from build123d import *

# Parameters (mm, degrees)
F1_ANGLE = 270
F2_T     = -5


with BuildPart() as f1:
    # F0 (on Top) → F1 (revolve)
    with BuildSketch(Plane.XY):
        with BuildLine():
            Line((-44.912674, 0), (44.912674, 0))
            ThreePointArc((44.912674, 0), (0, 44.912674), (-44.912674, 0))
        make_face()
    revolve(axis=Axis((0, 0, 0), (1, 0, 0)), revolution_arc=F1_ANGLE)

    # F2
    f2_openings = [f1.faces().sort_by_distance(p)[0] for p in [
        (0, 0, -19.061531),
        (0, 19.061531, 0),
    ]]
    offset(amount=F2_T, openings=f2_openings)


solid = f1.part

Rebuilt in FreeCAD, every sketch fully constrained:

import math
import FreeCAD as App
import Part
import Sketcher
from FreeCAD import Vector


def faces_at(feature, points):
    """Names of the faces that lie closest to the given points."""
    faces = feature.Shape.Faces
    near = lambda p: min(range(len(faces)), key=lambda i: faces[i].distToShape(Part.Vertex(*p))[0])
    return sorted({f"Face{near(p) + 1}" for p in points})

doc = App.newDocument("Part")
body = doc.addObject("PartDesign::Body", "Body")

sketch1 = body.newObject("Sketcher::SketchObject", "Sketch")
sketch1.AttachmentSupport = (doc.getObject("XY_Plane"), [""])
sketch1.MapMode = "FlatFace"
sketch1.addGeometry([
    Part.LineSegment(Vector(-44.912674, 0, 0), Vector(44.912674, 0, 0)),
    Part.ArcOfCircle(Part.Circle(Vector(0, 0, 0), Vector(0, 0, 1), 44.912674), math.radians(0), math.radians(180)),
], False)
sketch1.addConstraint([
    Sketcher.Constraint("Coincident", 0, 1, 1, 2),
    Sketcher.Constraint("Coincident", 1, 1, 0, 2),
    Sketcher.Constraint("Horizontal", 0),
    Sketcher.Constraint("Coincident", 1, 3, -1, 1),
    Sketcher.Constraint("PointOnObject", 0, 1, -1),
    Sketcher.Constraint("Radius", 1, 44.912674),
])
revolution = body.newObject("PartDesign::Revolution", "Revolution")
revolution.Profile = sketch1
revolution.ReferenceAxis = (sketch1, ["H_Axis"])
revolution.Angle = 270
doc.recompute()

thickness = body.newObject("PartDesign::Thickness", "Thickness")
thickness.Base = (revolution, faces_at(revolution, [(0, 0, -22.456), (0, 22.456, 0)]))
thickness.Value = 5
thickness.Reversed = True
thickness.Join = "Arc"

doc.recompute()
